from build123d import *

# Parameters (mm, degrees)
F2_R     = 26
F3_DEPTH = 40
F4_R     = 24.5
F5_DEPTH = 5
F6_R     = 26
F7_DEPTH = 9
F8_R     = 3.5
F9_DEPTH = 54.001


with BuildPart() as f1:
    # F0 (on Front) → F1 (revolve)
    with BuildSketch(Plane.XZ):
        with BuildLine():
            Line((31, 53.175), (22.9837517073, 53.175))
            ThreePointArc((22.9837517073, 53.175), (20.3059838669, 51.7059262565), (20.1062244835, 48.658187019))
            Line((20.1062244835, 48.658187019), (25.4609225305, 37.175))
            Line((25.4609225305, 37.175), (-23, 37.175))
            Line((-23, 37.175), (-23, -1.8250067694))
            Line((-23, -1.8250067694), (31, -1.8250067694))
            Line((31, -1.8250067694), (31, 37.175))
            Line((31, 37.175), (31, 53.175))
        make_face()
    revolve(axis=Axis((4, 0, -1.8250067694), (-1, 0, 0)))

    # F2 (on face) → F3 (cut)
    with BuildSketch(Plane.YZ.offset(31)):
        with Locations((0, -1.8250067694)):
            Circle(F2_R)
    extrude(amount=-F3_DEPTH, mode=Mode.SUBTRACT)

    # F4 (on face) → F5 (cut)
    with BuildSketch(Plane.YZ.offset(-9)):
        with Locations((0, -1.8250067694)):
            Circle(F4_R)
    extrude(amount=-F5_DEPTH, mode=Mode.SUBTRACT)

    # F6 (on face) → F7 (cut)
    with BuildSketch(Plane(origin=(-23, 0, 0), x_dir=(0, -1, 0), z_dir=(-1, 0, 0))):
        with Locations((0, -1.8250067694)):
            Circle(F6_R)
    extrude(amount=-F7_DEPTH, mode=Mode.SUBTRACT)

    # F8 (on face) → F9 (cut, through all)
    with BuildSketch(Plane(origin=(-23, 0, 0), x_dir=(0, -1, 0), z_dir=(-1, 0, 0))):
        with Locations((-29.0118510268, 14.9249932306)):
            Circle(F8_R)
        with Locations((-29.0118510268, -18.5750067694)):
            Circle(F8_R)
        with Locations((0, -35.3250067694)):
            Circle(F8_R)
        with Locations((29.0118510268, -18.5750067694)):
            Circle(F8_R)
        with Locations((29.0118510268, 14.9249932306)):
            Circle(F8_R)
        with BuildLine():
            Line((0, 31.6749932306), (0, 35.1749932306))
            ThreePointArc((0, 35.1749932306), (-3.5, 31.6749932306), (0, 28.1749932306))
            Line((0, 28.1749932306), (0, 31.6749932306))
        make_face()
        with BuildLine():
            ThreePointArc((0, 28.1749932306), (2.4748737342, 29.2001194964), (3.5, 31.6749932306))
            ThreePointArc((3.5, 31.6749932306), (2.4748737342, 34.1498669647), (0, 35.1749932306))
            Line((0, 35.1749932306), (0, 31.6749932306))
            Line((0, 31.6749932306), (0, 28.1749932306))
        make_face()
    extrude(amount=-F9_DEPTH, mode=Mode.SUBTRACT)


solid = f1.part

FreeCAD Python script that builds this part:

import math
import FreeCAD as App
import Part
import Sketcher

V = App.Vector
Q = App.Units.Quantity

doc = App.newDocument("Part")
body = doc.addObject("PartDesign::Body", "Body")

sketch1 = body.newObject("Sketcher::SketchObject", "Sketch")
sketch1.AttachmentSupport = (doc.getObject("XZ_Plane"), [""])
sketch1.MapMode = "FlatFace"
sketch1.addGeometry([
    Part.LineSegment(V(31, 53.2, 0), V(23, 53.2, 0)),
    Part.ArcOfCircle(Part.Circle(V(23, 50, 0), V(0, 0, 1), 3.2), math.radians(90), math.radians(205)),
    Part.LineSegment(V(20.1, 48.7, 0), V(25.5, 37.2, 0)),
    Part.LineSegment(V(25.5, 37.2, 0), V(-23, 37.2, 0)),
    Part.LineSegment(V(-23, 37.2, 0), V(-23, -1.8, 0)),
    Part.LineSegment(V(-23, -1.8, 0), V(31, -1.8, 0)),
    Part.LineSegment(V(31, -1.8, 0), V(31, 53.2, 0)),
], False)
sketch1.addGeometry(Part.LineSegment(V(31, -1.8, 0), V(-23, -1.8, 0)), True)
sketch1.addConstraint([
    Sketcher.Constraint("Tangent", 0, 2, 1, 1),
    Sketcher.Constraint("Tangent", 1, 2, 2, 1),
    Sketcher.Constraint("Coincident", 2, 2, 3, 1),
    Sketcher.Constraint("Coincident", 3, 2, 4, 1),
    Sketcher.Constraint("Coincident", 4, 2, 5, 1),
    Sketcher.Constraint("Coincident", 5, 2, 6, 1),
    Sketcher.Constraint("Coincident", 6, 2, 0, 1),
    Sketcher.Constraint("Horizontal", 0),
    Sketcher.Constraint("Horizontal", 3),
    Sketcher.Constraint("Vertical", 4),
    Sketcher.Constraint("Horizontal", 5),
    Sketcher.Constraint("Vertical", 6),
    Sketcher.Constraint("Horizontal", 7),
    Sketcher.Constraint("Coincident", 7, 1, 5, 2),
    Sketcher.Constraint("Vertical", 3, 2, 7, 2),
    Sketcher.Constraint("DistanceX", 5, 1, 5, 2, 54.0),
    Sketcher.Constraint("Angle", 2, Q("-65 deg")),
    Sketcher.Constraint("DistanceY", -1, 1, 1, 3, 50.0),
    Sketcher.Constraint("DistanceX", 3, 2, -1, 1, 23.0),
    Sketcher.Constraint("Radius", 1, 3.175),
    Sketcher.Constraint("DistanceY", 2, 2, 0, 2, 16.0),
    Sketcher.Constraint("DistanceX", 0, 2, 0, 1, 8.016248),
    Sketcher.Constraint("DistanceY", 4, 2, 4, 1, 39.000007),
])
revolution = body.newObject("PartDesign::Revolution", "Revolution")
revolution.Profile = sketch1
revolution.ReferenceAxis = (sketch1, ["Axis0"])
revolution.Angle = 360

sketch2 = body.newObject("Sketcher::SketchObject", "Sketch001")
sketch2.AttachmentSupport = (doc.getObject("YZ_Plane"), [""])
sketch2.MapMode = "FlatFace"
sketch2.AttachmentOffset = App.Placement(V(0, 0, 31), App.Rotation())
sketch2.addGeometry(Part.Circle(V(0, -2, 0), V(0, 0, 1), 26), False)
sketch2.addConstraint([
    Sketcher.Constraint("PointOnObject", 0, 3, -2),
    Sketcher.Constraint("Diameter", 0, 52.0),
    Sketcher.Constraint("DistanceY", 0, 3, -1, 1, 1.825007),
])
pocket1 = body.newObject("PartDesign::Pocket", "Pocket")
pocket1.Profile = sketch2
pocket1.Length = 40

sketch3 = body.newObject("Sketcher::SketchObject", "Sketch002")
sketch3.AttachmentSupport = (doc.getObject("YZ_Plane"), [""])
sketch3.MapMode = "FlatFace"
sketch3.AttachmentOffset = App.Placement(V(0, 0, -9), App.Rotation())
sketch3.addGeometry(Part.Circle(V(0, -2, 0), V(0, 0, 1), 24), False)
sketch3.addConstraint([
    Sketcher.Constraint("PointOnObject", 0, 3, -2),
    Sketcher.Constraint("Diameter", 0, 49.0),
    Sketcher.Constraint("DistanceY", 0, 3, -1, 1, 1.825007),
])
pocket2 = body.newObject("PartDesign::Pocket", "Pocket001")
pocket2.Profile = sketch3
pocket2.Length = 5

sketch4 = body.newObject("Sketcher::SketchObject", "Sketch003")
sketch4.AttachmentSupport = (doc.getObject("YZ_Plane"), [""])
sketch4.MapMode = "FlatFace"
sketch4.AttachmentOffset = App.Placement(V(0, 0, -23), App.Rotation())
sketch4.addGeometry(Part.Circle(V(0, -2, 0), V(0, 0, 1), 26), False)
sketch4.addConstraint([
    Sketcher.Constraint("PointOnObject", 0, 3, -2),
    Sketcher.Constraint("Diameter", 0, 52.0),
    Sketcher.Constraint("DistanceY", 0, 3, -1, 1, 1.825007),
])
pocket3 = body.newObject("PartDesign::Pocket", "Pocket002")
pocket3.Profile = sketch4
pocket3.Length = 9
pocket3.Reversed = True

sketch5 = body.newObject("Sketcher::SketchObject", "Sketch004")
sketch5.AttachmentSupport = (doc.getObject("YZ_Plane"), [""])
sketch5.MapMode = "FlatFace"
sketch5.AttachmentOffset = App.Placement(V(0, 0, -23), App.Rotation())
sketch5.addGeometry([
    Part.Circle(V(29, 14.9, 0), V(0, 0, 1), 3.5),
    Part.Circle(V(29, -18.6, 0), V(0, 0, 1), 3.5),
    Part.Circle(V(0, -35.3, 0), V(0, 0, 1), 3.5),
    Part.Circle(V(-29, -18.6, 0), V(0, 0, 1), 3.5),
    Part.Circle(V(-29, 14.9, 0), V(0, 0, 1), 3.5),
    Part.ArcOfCircle(Part.Circle(V(0, 31.7, 0), V(0, 0, 1), 3.5), math.radians(-90), math.radians(90)),
    Part.ArcOfCircle(Part.Circle(V(0, 31.7, 0), V(0, 0, 1), 3.5), math.radians(180), math.radians(270)),
    Part.ArcOfCircle(Part.Circle(V(0, 31.7, 0), V(0, 0, 1), 3.5), math.radians(90), math.radians(180)),
], False)
sketch5.addConstraint([
    Sketcher.Constraint("Tangent", 5, 1, 6, 2),
    Sketcher.Constraint("Tangent", 6, 1, 7, 2),
    Sketcher.Constraint("Tangent", 7, 1, 5, 2),
    Sketcher.Constraint("Equal", 0, 1),
    Sketcher.Constraint("Equal", 1, 2),
    Sketcher.Constraint("Equal", 2, 3),
    Sketcher.Constraint("Equal", 3, 4),
    Sketcher.Constraint("Equal", 4, 5),
    Sketcher.Constraint("Symmetric", 1, 3, 3, 3, -2),
    Sketcher.Constraint("Symmetric", 0, 3, 4, 3, -2),
    Sketcher.Constraint("PointOnObject", 2, 3, -2),
    Sketcher.Constraint("PointOnObject", 5, 3, -2),
    Sketcher.Constraint("PointOnObject", 5, 1, -2),
    Sketcher.Constraint("PointOnObject", 7, 1, -2),
    Sketcher.Constraint("Horizontal", 7, 3, 6, 1),
    Sketcher.Constraint("Vertical", 0, 3, 1, 3),
    Sketcher.Constraint("Diameter", 0, 7.0),
    Sketcher.Constraint("DistanceY", 2, 3, 5, 3, 67.0),
    Sketcher.Constraint("DistanceY", 1, 3, 0, 3, 33.5),
    Sketcher.Constraint("DistanceY", 2, 3, 1, 3, 16.75),
    Sketcher.Constraint("DistanceX", -1, 1, 0, 3, 29.011851),
    Sketcher.Constraint("DistanceY", -1, 1, 0, 3, 14.924993),
])
pocket4 = body.newObject("PartDesign::Pocket", "Pocket003")
pocket4.Profile = sketch5
pocket4.Type = "ThroughAll"
pocket4.Reversed = True

doc.recompute()
